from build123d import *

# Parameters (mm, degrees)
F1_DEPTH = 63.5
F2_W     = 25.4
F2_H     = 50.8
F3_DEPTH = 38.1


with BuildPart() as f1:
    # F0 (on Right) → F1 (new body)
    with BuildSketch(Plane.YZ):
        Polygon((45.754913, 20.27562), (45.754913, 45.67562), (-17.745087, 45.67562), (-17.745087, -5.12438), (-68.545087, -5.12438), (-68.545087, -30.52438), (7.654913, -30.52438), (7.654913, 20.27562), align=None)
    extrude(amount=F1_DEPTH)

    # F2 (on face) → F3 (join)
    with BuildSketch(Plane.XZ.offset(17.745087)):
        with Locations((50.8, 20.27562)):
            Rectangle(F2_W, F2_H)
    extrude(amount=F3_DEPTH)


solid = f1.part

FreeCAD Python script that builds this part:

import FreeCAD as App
import Part
import Sketcher

V = App.Vector
Q = App.Units.Quantity

doc = App.newDocument("Part")
body = doc.addObject("PartDesign::Body", "Body")

sketch1 = body.newObject("Sketcher::SketchObject", "Sketch")
sketch1.AttachmentSupport = (doc.getObject("YZ_Plane"), [""])
sketch1.MapMode = "FlatFace"
sketch1.addGeometry([
    Part.LineSegment(V(45.754913, 20.27562, 0), V(45.754913, 45.67562, 0)),
    Part.LineSegment(V(45.754913, 45.67562, 0), V(-17.745087, 45.67562, 0)),
    Part.LineSegment(V(-17.745087, 45.67562, 0), V(-17.745087, -5.12438, 0)),
    Part.LineSegment(V(-17.745087, -5.12438, 0), V(-68.545087, -5.12438, 0)),
    Part.LineSegment(V(-68.545087, -5.12438, 0), V(-68.545087, -30.52438, 0)),
    Part.LineSegment(V(-68.545087, -30.52438, 0), V(7.654913, -30.52438, 0)),
    Part.LineSegment(V(7.654913, -30.52438, 0), V(7.654913, 20.27562, 0)),
    Part.LineSegment(V(7.654913, 20.27562, 0), V(45.754913, 20.27562, 0)),
], False)
sketch1.addConstraint([
    Sketcher.Constraint("Coincident", 0, 2, 1, 1),
    Sketcher.Constraint("Coincident", 1, 2, 2, 1),
    Sketcher.Constraint("Coincident", 2, 2, 3, 1),
    Sketcher.Constraint("Coincident", 3, 2, 4, 1),
    Sketcher.Constraint("Coincident", 4, 2, 5, 1),
    Sketcher.Constraint("Coincident", 5, 2, 6, 1),
    Sketcher.Constraint("Coincident", 6, 2, 7, 1),
    Sketcher.Constraint("Coincident", 7, 2, 0, 1),
    Sketcher.Constraint("Vertical", 0),
    Sketcher.Constraint("Horizontal", 1),
    Sketcher.Constraint("Vertical", 2),
    Sketcher.Constraint("Horizontal", 3),
    Sketcher.Constraint("Vertical", 4),
    Sketcher.Constraint("Horizontal", 5),
    Sketcher.Constraint("Vertical", 6),
    Sketcher.Constraint("Horizontal", 7),
    Sketcher.Constraint("Equal", 3, 2),
    Sketcher.Constraint("Equal", 0, 4),
    Sketcher.Constraint("DistanceX", 3, 2, 3, 1, Q("2 in")),
    Sketcher.Constraint("DistanceX", 5, 1, 5, 2, Q("3 in")),
    Sketcher.Constraint("DistanceY", 0, 1, 0, 2, Q("1 in")),
    Sketcher.Constraint("DistanceX", 1, 2, 1, 1, Q("2.5 in")),
    Sketcher.Constraint("DistanceY", -1, 1, 0, 2, Q("45.67562 mm")),
    Sketcher.Constraint("DistanceX", -1, 1, 0, 2, Q("45.754913 mm")),
])
pad1 = body.newObject("PartDesign::Pad", "Pad")
pad1.Profile = sketch1
pad1.Length = Q("2.5 in")

sketch2 = body.newObject("Sketcher::SketchObject", "Sketch001")
sketch2.AttachmentSupport = (doc.getObject("XZ_Plane"), [""])
sketch2.MapMode = "FlatFace"
sketch2.AttachmentOffset = App.Placement(V(0, 0, 17.745087), App.Rotation())
sketch2.addGeometry([
    Part.LineSegment(V(38.1, 45.67562, 0), V(38.1, -5.12438, 0)),
    Part.LineSegment(V(38.1, -5.12438, 0), V(63.5, -5.12438, 0)),
    Part.LineSegment(V(63.5, -5.12438, 0), V(63.5, 45.67562, 0)),
    Part.LineSegment(V(63.5, 45.67562, 0), V(38.1, 45.67562, 0)),
], False)
sketch2.addConstraint([
    Sketcher.Constraint("Coincident", 0, 2, 1, 1),
    Sketcher.Constraint("Coincident", 1, 2, 2, 1),
    Sketcher.Constraint("Coincident", 2, 2, 3, 1),
    Sketcher.Constraint("Coincident", 3, 2, 0, 1),
    Sketcher.Constraint("Vertical", 0),
    Sketcher.Constraint("Horizontal", 1),
    Sketcher.Constraint("Vertical", 2),
    Sketcher.Constraint("Horizontal", 3),
    Sketcher.Constraint("DistanceX", 1, 1, 1, 2, Q("1 in")),
    Sketcher.Constraint("DistanceY", 0, 2, 0, 1, Q("2 in")),
    Sketcher.Constraint("DistanceX", -1, 1, 0, 2, Q("1.5 in")),
    Sketcher.Constraint("DistanceY", 0, 2, -1, 1, Q("5.12438 mm")),
])
pad2 = body.newObject("PartDesign::Pad", "Pad001")
pad2.Profile = sketch2
pad2.Length = Q("1.5 in")

doc.recompute()
